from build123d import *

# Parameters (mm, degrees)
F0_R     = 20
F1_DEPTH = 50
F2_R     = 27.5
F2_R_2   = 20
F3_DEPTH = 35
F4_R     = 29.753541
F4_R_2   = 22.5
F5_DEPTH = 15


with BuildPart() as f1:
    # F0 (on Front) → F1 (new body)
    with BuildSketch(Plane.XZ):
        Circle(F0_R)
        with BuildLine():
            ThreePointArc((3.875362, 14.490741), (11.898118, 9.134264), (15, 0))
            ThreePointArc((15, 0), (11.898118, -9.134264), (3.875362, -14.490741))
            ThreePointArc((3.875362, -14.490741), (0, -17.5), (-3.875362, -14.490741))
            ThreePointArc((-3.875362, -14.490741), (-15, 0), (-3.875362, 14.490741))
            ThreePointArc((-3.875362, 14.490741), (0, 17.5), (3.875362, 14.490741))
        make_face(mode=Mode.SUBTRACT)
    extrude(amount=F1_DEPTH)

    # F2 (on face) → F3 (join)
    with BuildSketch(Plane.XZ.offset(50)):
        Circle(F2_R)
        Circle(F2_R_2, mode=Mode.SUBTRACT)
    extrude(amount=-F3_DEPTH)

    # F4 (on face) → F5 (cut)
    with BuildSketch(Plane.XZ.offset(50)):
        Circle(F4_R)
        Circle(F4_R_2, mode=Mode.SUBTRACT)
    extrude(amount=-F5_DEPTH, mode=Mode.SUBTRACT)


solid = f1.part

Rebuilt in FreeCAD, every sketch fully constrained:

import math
import FreeCAD as App
import Part
import Sketcher

V = App.Vector

doc = App.newDocument("Part")
params = doc.addObject("Spreadsheet::Sheet", "Params")
for row, (alias, value) in enumerate([
    ("sketch1_diameter", "40 mm"),
    ("sketch1_radius", "4 mm"),
    ("sketch1_radius2", "15.000002 mm"),
    ("pad1_length", "50 mm"),
    ("sketch2_diameter", "55 mm"),
    ("sketch2_diameter2", "40 mm"),
    ("pad2_length", "35 mm"),
    ("sketch3_diameter", "45 mm"),
    ("pocket1_length", "15 mm"),
], start=1):
    params.set(f"A{row}", alias)
    params.set(f"B{row}", "=" + value)
    params.setAlias(f"B{row}", alias)

body = doc.addObject("PartDesign::Body", "Body")

# Sketch on XZ plane
sketch1 = body.newObject("Sketcher::SketchObject", "Sketch")
sketch1.AttachmentSupport = (doc.getObject("XZ_Plane"), [""])
sketch1.MapMode = "FlatFace"
sketch1.addGeometry([
    Part.Circle(V(0, 0, 0), V(0, 0, 1), 20),  # 0
    Part.ArcOfCircle(Part.Circle(V(0, 13.5, 0), V(0, 0, 1), 4), math.radians(14), math.radians(166)),  # 1
    Part.ArcOfCircle(Part.Circle(V(0, 0, 0), V(0, 0, 1), 15), math.radians(0), math.radians(75)),  # 2
    Part.ArcOfCircle(Part.Circle(V(0, 0, 0), V(0, 0, 1), 15), math.radians(-75), math.radians(0)),  # 3
    Part.ArcOfCircle(Part.Circle(V(0, -13.5, 0), V(0, 0, 1), 4), math.radians(-166), math.radians(-14)),  # 4
    Part.ArcOfCircle(Part.Circle(V(0, 0, 0), V(0, 0, 1), 15), math.radians(105), math.radians(255)),  # 5
], False)
sketch1.addConstraint([
    Sketcher.Constraint("Coincident", 1, 1, 2, 2),
    Sketcher.Constraint("Tangent", 2, 1, 3, 2),
    Sketcher.Constraint("Coincident", 3, 1, 4, 2),
    Sketcher.Constraint("Coincident", 4, 1, 5, 2),
    Sketcher.Constraint("Coincident", 5, 1, 1, 2),
    Sketcher.Constraint("Coincident", 0, 3, -1, 1),
    Sketcher.Constraint("Coincident", 2, 3, -1, 1),
    Sketcher.Constraint("Coincident", 5, 3, -1, 1),
    Sketcher.Constraint("Equal", 2, 3),
    Sketcher.Constraint("Equal", 1, 4),
    Sketcher.Constraint("Equal", 3, 5),
    Sketcher.Constraint("Symmetric", 1, 3, 4, 3, -1, 1),
    Sketcher.Constraint("PointOnObject", 1, 3, -2),
    Sketcher.Constraint("PointOnObject", 2, 1, -1),
    Sketcher.Constraint("Diameter", 0, 40.0),
    Sketcher.Constraint("Radius", 1, 4.0),
    Sketcher.Constraint("Radius", 2, 15.000002),
    Sketcher.Constraint("DistanceY", 4, 3, 1, 3, 27.000001),
])
sketch1.setExpression("Constraints[14]", "Params.sketch1_diameter")
sketch1.setExpression("Constraints[15]", "Params.sketch1_radius")
sketch1.setExpression("Constraints[16]", "Params.sketch1_radius2")
pad1 = body.newObject("PartDesign::Pad", "Pad")
pad1.Profile = sketch1
pad1.setExpression("Length", "Params.pad1_length")

# Sketch on XZ plane
sketch2 = body.newObject("Sketcher::SketchObject", "Sketch001")
sketch2.AttachmentSupport = (doc.getObject("XZ_Plane"), [""])
sketch2.MapMode = "FlatFace"
sketch2.AttachmentOffset = App.Placement(V(0, 0, 50), App.Rotation())
sketch2.addGeometry([
    Part.Circle(V(0, 0, 0), V(0, 0, 1), 28),
    Part.Circle(V(0, 0, 0), V(0, 0, 1), 20),
], False)
sketch2.addConstraint([
    Sketcher.Constraint("Coincident", 0, 3, -1, 1),
    Sketcher.Constraint("Coincident", 1, 3, -1, 1),
    Sketcher.Constraint("Diameter", 0, 55.0),
    Sketcher.Constraint("Diameter", 1, 40.0),
])
sketch2.setExpression("Constraints[2]", "Params.sketch2_diameter")
sketch2.setExpression("Constraints[3]", "Params.sketch2_diameter2")
pad2 = body.newObject("PartDesign::Pad", "Pad001")
pad2.Profile = sketch2
pad2.setExpression("Length", "Params.pad2_length")
pad2.Reversed = True

# Sketch on XZ plane
sketch3 = body.newObject("Sketcher::SketchObject", "Sketch002")
sketch3.AttachmentSupport = (doc.getObject("XZ_Plane"), [""])
sketch3.MapMode = "FlatFace"
sketch3.AttachmentOffset = App.Placement(V(0, 0, 50), App.Rotation())
sketch3.addGeometry([
    Part.Circle(V(0, 0, 0), V(0, 0, 1), 30),
    Part.Circle(V(0, 0, 0), V(0, 0, 1), 22),
], False)
sketch3.addConstraint([
    Sketcher.Constraint("Coincident", 0, 3, -1, 1),
    Sketcher.Constraint("Coincident", 1, 3, -1, 1),
    Sketcher.Constraint("Diameter", 1, 45.0),
    Sketcher.Constraint("Diameter", 0, 59.507082),
])
sketch3.setExpression("Constraints[2]", "Params.sketch3_diameter")
pocket1 = body.newObject("PartDesign::Pocket", "Pocket")
pocket1.Profile = sketch3
pocket1.setExpression("Length", "Params.pocket1_length")

doc.recompute()
